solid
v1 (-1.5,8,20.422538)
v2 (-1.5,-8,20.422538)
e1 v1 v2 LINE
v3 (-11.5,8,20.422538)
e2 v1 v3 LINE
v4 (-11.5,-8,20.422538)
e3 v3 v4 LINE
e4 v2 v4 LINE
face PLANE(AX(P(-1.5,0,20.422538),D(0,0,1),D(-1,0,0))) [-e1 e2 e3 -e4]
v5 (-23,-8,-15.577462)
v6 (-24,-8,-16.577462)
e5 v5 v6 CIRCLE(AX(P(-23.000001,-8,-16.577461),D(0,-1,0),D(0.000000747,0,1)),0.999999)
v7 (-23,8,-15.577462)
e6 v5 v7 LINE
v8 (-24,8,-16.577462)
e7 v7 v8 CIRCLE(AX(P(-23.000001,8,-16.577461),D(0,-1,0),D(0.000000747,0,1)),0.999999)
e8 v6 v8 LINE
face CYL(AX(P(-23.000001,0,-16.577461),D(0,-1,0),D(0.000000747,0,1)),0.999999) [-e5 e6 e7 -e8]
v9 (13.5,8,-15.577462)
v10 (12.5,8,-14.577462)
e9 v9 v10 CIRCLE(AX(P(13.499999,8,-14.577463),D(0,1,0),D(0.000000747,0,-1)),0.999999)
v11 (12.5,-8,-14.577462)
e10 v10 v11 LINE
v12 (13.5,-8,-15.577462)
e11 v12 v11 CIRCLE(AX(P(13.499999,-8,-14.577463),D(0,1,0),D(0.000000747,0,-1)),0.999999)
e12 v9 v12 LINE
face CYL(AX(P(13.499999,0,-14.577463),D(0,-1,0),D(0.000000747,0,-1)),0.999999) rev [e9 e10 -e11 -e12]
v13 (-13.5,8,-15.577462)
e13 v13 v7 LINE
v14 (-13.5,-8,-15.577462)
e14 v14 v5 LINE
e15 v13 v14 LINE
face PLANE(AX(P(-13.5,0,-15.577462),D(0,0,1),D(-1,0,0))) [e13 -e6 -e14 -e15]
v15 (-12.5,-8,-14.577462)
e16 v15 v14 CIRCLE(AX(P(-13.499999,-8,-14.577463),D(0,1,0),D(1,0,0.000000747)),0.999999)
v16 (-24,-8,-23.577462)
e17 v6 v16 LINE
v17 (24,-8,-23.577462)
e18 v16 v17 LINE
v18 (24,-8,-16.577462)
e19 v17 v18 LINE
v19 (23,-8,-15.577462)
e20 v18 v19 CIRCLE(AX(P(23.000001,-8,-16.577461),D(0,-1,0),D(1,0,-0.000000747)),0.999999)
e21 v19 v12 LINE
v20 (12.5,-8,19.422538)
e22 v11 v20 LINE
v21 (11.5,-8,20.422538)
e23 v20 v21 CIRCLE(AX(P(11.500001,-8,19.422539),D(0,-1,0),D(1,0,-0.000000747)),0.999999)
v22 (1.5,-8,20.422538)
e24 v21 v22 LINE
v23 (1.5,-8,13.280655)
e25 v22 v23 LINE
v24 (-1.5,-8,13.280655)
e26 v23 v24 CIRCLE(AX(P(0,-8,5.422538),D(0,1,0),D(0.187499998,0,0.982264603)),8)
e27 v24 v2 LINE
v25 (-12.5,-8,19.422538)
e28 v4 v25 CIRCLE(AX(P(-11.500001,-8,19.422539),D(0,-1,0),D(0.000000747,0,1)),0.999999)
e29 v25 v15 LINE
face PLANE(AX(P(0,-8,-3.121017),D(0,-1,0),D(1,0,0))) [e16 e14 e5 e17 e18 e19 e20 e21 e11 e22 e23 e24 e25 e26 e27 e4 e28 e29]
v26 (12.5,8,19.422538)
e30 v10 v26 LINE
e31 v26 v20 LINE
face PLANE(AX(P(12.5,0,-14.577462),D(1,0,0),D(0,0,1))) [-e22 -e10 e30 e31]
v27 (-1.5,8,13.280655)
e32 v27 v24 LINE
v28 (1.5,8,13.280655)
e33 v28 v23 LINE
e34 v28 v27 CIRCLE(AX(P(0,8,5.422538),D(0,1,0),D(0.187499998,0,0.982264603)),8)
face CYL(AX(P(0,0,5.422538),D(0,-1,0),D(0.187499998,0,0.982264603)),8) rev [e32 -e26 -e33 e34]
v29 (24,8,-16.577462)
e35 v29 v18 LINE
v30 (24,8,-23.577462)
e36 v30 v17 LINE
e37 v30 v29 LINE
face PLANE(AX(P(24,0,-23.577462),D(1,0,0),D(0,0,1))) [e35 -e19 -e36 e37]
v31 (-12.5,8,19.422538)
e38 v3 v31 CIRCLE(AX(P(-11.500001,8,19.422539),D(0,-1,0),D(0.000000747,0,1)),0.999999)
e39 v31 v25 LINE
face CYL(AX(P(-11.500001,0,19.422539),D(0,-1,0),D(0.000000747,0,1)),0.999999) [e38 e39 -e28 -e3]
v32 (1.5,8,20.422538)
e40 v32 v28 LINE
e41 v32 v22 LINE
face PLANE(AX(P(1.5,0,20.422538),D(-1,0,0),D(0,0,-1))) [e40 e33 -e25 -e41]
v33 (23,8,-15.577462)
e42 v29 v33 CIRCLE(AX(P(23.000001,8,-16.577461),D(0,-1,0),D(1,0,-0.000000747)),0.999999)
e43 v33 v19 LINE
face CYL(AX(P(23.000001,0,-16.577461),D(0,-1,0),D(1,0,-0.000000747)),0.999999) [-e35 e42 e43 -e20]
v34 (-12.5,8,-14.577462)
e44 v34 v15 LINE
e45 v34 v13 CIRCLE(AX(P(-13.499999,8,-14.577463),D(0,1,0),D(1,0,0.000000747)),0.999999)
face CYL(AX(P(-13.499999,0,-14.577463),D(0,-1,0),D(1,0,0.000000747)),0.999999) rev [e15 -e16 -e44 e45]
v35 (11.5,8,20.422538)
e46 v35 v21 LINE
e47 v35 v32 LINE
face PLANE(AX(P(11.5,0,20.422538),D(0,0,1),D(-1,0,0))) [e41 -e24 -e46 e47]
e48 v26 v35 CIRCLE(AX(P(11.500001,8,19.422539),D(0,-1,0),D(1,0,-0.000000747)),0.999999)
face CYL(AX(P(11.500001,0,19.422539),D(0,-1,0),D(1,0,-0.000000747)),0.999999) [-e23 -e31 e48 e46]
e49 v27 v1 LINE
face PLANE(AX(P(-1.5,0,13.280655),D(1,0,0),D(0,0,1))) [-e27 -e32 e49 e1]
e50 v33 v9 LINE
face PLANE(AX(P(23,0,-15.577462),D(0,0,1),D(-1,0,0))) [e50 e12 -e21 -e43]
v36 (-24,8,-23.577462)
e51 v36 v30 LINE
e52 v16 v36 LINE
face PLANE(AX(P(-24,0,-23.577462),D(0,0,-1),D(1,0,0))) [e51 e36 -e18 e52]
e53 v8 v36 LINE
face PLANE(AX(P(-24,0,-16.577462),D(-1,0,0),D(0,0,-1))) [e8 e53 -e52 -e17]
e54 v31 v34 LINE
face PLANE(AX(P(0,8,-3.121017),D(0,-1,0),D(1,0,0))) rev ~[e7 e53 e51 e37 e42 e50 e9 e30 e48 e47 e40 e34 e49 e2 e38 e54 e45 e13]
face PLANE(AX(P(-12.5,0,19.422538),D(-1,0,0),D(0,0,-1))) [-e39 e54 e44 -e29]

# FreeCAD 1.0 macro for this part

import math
import FreeCAD as App
import Part
import Sketcher

V = App.Vector

doc = App.newDocument("Part")
body = doc.addObject("PartDesign::Body", "Body")

# Sketch on XZ plane
sketch1 = doc.addObject("Sketcher::SketchObject", "Sketch")
body.addObject(sketch1)
sketch1.AttachmentSupport = (doc.XZ_Plane, [""])
sketch1.MapMode = "FlatFace"
sketch1.addGeometry(Part.LineSegment(V(-24, -23.6, 0), V(24, -23.6, 0)), False)
sketch1.addGeometry(Part.LineSegment(V(24, -23.6, 0), V(24, -16.6, 0)), False)
sketch1.addGeometry(Part.ArcOfCircle(Part.Circle(V(23, -16.6, 0), V(0, 0, 1), 1), math.radians(0), math.radians(90)), False)
sketch1.addGeometry(Part.LineSegment(V(23, -15.6, 0), V(13.5, -15.6, 0)), False)
sketch1.addGeometry(Part.ArcOfCircle(Part.Circle(V(13.5, -14.6, 0), V(0, 0, 1), 1), math.radians(180), math.radians(270)), False)
sketch1.addGeometry(Part.LineSegment(V(12.5, -14.6, 0), V(12.5, 19.4, 0)), False)
sketch1.addGeometry(Part.ArcOfCircle(Part.Circle(V(11.5, 19.4, 0), V(0, 0, 1), 1), math.radians(0), math.radians(90)), False)
sketch1.addGeometry(Part.LineSegment(V(11.5, 20.4, 0), V(1.5, 20.4, 0)), False)
sketch1.addGeometry(Part.LineSegment(V(1.5, 20.4, 0), V(1.5, 13.3, 0)), False)
sketch1.addGeometry(Part.ArcOfCircle(Part.Circle(V(0, 5.4, 0), V(0, 0, 1), 8), math.radians(101), math.radians(439)), False)
sketch1.addGeometry(Part.LineSegment(V(-1.5, 13.3, 0), V(-1.5, 20.4, 0)), False)
sketch1.addGeometry(Part.LineSegment(V(-1.5, 20.4, 0), V(-11.5, 20.4, 0)), False)
sketch1.addGeometry(Part.ArcOfCircle(Part.Circle(V(-11.5, 19.4, 0), V(0, 0, 1), 1), math.radians(90), math.radians(180)), False)
sketch1.addGeometry(Part.LineSegment(V(-12.5, 19.4, 0), V(-12.5, -14.6, 0)), False)
sketch1.addGeometry(Part.ArcOfCircle(Part.Circle(V(-13.5, -14.6, 0), V(0, 0, 1), 1), math.radians(-90), math.radians(0)), False)
sketch1.addGeometry(Part.LineSegment(V(-13.5, -15.6, 0), V(-23, -15.6, 0)), False)
sketch1.addGeometry(Part.ArcOfCircle(Part.Circle(V(-23, -16.6, 0), V(0, 0, 1), 1), math.radians(90), math.radians(180)), False)
sketch1.addGeometry(Part.LineSegment(V(-24, -16.6, 0), V(-24, -23.6, 0)), False)
sketch1.addConstraint(Sketcher.Constraint("Coincident", 0, 2, 1, 1))
sketch1.addConstraint(Sketcher.Constraint("Tangent", 1, 2, 2, 1))
sketch1.addConstraint(Sketcher.Constraint("Tangent", 2, 2, 3, 1))
sketch1.addConstraint(Sketcher.Constraint("Tangent", 3, 2, 4, 2))
sketch1.addConstraint(Sketcher.Constraint("Tangent", 4, 1, 5, 1))
sketch1.addConstraint(Sketcher.Constraint("Tangent", 5, 2, 6, 1))
sketch1.addConstraint(Sketcher.Constraint("Tangent", 6, 2, 7, 1))
sketch1.addConstraint(Sketcher.Constraint("Coincident", 7, 2, 8, 1))
sketch1.addConstraint(Sketcher.Constraint("Coincident", 8, 2, 9, 2))
sketch1.addConstraint(Sketcher.Constraint("Coincident", 9, 1, 10, 1))
sketch1.addConstraint(Sketcher.Constraint("Coincident", 10, 2, 11, 1))
sketch1.addConstraint(Sketcher.Constraint("Tangent", 11, 2, 12, 1))
sketch1.addConstraint(Sketcher.Constraint("Tangent", 12, 2, 13, 1))
sketch1.addConstraint(Sketcher.Constraint("Tangent", 13, 2, 14, 2))
sketch1.addConstraint(Sketcher.Constraint("Tangent", 14, 1, 15, 1))
sketch1.addConstraint(Sketcher.Constraint("Tangent", 15, 2, 16, 1))
sketch1.addConstraint(Sketcher.Constraint("Tangent", 16, 2, 17, 1))
sketch1.addConstraint(Sketcher.Constraint("Coincident", 17, 2, 0, 1))
sketch1.addConstraint(Sketcher.Constraint("Horizontal", 0))
sketch1.addConstraint(Sketcher.Constraint("Vertical", 1))
sketch1.addConstraint(Sketcher.Constraint("Horizontal", 3))
sketch1.addConstraint(Sketcher.Constraint("Vertical", 5))
sketch1.addConstraint(Sketcher.Constraint("Horizontal", 7))
sketch1.addConstraint(Sketcher.Constraint("Vertical", 8))
sketch1.addConstraint(Sketcher.Constraint("Vertical", 10))
sketch1.addConstraint(Sketcher.Constraint("Horizontal", 11))
sketch1.addConstraint(Sketcher.Constraint("Vertical", 13))
sketch1.addConstraint(Sketcher.Constraint("Horizontal", 15))
sketch1.addConstraint(Sketcher.Constraint("Vertical", 17))
sketch1.addConstraint(Sketcher.Constraint("Equal", 2, 4))
sketch1.addConstraint(Sketcher.Constraint("Equal", 4, 6))
sketch1.addConstraint(Sketcher.Constraint("Equal", 6, 12))
sketch1.addConstraint(Sketcher.Constraint("Equal", 12, 14))
sketch1.addConstraint(Sketcher.Constraint("Equal", 14, 16))
sketch1.addConstraint(Sketcher.Constraint("Symmetric", 6, 3, 12, 3, -2))
sketch1.addConstraint(Sketcher.Constraint("Symmetric", 2, 3, 16, 3, -2))
sketch1.addConstraint(Sketcher.Constraint("Symmetric", 8, 2, 9, 1, -2))
sketch1.addConstraint(Sketcher.Constraint("Radius", 2, 0.999999))
sketch1.addConstraint(Sketcher.Constraint("Radius", 9, 8.0))
sketch1.addConstraint(Sketcher.Constraint("DistanceX", 0, 1, 0, 2, 48.0))
sketch1.addConstraint(Sketcher.Constraint("DistanceX", 7, 2, 7, 1, 10.0))
sketch1.addConstraint(Sketcher.Constraint("DistanceY", 1, 1, 1, 2, 7.0))
sketch1.addConstraint(Sketcher.Constraint("DistanceY", 5, 1, 5, 2, 34.0))
sketch1.addConstraint(Sketcher.Constraint("DistanceX", 3, 2, 3, 1, 9.5))
sketch1.addConstraint(Sketcher.Constraint("DistanceY", 9, 3, 6, 3, 14.000001))
sketch1.addConstraint(Sketcher.Constraint("DistanceY", 2, 3, -1, 1, 16.577461))
pad1 = doc.addObject("PartDesign::Pad", "Pad")
body.addObject(pad1)
pad1.Profile = sketch1
pad1.Length = 16
pad1.Midplane = True

doc.recompute()
